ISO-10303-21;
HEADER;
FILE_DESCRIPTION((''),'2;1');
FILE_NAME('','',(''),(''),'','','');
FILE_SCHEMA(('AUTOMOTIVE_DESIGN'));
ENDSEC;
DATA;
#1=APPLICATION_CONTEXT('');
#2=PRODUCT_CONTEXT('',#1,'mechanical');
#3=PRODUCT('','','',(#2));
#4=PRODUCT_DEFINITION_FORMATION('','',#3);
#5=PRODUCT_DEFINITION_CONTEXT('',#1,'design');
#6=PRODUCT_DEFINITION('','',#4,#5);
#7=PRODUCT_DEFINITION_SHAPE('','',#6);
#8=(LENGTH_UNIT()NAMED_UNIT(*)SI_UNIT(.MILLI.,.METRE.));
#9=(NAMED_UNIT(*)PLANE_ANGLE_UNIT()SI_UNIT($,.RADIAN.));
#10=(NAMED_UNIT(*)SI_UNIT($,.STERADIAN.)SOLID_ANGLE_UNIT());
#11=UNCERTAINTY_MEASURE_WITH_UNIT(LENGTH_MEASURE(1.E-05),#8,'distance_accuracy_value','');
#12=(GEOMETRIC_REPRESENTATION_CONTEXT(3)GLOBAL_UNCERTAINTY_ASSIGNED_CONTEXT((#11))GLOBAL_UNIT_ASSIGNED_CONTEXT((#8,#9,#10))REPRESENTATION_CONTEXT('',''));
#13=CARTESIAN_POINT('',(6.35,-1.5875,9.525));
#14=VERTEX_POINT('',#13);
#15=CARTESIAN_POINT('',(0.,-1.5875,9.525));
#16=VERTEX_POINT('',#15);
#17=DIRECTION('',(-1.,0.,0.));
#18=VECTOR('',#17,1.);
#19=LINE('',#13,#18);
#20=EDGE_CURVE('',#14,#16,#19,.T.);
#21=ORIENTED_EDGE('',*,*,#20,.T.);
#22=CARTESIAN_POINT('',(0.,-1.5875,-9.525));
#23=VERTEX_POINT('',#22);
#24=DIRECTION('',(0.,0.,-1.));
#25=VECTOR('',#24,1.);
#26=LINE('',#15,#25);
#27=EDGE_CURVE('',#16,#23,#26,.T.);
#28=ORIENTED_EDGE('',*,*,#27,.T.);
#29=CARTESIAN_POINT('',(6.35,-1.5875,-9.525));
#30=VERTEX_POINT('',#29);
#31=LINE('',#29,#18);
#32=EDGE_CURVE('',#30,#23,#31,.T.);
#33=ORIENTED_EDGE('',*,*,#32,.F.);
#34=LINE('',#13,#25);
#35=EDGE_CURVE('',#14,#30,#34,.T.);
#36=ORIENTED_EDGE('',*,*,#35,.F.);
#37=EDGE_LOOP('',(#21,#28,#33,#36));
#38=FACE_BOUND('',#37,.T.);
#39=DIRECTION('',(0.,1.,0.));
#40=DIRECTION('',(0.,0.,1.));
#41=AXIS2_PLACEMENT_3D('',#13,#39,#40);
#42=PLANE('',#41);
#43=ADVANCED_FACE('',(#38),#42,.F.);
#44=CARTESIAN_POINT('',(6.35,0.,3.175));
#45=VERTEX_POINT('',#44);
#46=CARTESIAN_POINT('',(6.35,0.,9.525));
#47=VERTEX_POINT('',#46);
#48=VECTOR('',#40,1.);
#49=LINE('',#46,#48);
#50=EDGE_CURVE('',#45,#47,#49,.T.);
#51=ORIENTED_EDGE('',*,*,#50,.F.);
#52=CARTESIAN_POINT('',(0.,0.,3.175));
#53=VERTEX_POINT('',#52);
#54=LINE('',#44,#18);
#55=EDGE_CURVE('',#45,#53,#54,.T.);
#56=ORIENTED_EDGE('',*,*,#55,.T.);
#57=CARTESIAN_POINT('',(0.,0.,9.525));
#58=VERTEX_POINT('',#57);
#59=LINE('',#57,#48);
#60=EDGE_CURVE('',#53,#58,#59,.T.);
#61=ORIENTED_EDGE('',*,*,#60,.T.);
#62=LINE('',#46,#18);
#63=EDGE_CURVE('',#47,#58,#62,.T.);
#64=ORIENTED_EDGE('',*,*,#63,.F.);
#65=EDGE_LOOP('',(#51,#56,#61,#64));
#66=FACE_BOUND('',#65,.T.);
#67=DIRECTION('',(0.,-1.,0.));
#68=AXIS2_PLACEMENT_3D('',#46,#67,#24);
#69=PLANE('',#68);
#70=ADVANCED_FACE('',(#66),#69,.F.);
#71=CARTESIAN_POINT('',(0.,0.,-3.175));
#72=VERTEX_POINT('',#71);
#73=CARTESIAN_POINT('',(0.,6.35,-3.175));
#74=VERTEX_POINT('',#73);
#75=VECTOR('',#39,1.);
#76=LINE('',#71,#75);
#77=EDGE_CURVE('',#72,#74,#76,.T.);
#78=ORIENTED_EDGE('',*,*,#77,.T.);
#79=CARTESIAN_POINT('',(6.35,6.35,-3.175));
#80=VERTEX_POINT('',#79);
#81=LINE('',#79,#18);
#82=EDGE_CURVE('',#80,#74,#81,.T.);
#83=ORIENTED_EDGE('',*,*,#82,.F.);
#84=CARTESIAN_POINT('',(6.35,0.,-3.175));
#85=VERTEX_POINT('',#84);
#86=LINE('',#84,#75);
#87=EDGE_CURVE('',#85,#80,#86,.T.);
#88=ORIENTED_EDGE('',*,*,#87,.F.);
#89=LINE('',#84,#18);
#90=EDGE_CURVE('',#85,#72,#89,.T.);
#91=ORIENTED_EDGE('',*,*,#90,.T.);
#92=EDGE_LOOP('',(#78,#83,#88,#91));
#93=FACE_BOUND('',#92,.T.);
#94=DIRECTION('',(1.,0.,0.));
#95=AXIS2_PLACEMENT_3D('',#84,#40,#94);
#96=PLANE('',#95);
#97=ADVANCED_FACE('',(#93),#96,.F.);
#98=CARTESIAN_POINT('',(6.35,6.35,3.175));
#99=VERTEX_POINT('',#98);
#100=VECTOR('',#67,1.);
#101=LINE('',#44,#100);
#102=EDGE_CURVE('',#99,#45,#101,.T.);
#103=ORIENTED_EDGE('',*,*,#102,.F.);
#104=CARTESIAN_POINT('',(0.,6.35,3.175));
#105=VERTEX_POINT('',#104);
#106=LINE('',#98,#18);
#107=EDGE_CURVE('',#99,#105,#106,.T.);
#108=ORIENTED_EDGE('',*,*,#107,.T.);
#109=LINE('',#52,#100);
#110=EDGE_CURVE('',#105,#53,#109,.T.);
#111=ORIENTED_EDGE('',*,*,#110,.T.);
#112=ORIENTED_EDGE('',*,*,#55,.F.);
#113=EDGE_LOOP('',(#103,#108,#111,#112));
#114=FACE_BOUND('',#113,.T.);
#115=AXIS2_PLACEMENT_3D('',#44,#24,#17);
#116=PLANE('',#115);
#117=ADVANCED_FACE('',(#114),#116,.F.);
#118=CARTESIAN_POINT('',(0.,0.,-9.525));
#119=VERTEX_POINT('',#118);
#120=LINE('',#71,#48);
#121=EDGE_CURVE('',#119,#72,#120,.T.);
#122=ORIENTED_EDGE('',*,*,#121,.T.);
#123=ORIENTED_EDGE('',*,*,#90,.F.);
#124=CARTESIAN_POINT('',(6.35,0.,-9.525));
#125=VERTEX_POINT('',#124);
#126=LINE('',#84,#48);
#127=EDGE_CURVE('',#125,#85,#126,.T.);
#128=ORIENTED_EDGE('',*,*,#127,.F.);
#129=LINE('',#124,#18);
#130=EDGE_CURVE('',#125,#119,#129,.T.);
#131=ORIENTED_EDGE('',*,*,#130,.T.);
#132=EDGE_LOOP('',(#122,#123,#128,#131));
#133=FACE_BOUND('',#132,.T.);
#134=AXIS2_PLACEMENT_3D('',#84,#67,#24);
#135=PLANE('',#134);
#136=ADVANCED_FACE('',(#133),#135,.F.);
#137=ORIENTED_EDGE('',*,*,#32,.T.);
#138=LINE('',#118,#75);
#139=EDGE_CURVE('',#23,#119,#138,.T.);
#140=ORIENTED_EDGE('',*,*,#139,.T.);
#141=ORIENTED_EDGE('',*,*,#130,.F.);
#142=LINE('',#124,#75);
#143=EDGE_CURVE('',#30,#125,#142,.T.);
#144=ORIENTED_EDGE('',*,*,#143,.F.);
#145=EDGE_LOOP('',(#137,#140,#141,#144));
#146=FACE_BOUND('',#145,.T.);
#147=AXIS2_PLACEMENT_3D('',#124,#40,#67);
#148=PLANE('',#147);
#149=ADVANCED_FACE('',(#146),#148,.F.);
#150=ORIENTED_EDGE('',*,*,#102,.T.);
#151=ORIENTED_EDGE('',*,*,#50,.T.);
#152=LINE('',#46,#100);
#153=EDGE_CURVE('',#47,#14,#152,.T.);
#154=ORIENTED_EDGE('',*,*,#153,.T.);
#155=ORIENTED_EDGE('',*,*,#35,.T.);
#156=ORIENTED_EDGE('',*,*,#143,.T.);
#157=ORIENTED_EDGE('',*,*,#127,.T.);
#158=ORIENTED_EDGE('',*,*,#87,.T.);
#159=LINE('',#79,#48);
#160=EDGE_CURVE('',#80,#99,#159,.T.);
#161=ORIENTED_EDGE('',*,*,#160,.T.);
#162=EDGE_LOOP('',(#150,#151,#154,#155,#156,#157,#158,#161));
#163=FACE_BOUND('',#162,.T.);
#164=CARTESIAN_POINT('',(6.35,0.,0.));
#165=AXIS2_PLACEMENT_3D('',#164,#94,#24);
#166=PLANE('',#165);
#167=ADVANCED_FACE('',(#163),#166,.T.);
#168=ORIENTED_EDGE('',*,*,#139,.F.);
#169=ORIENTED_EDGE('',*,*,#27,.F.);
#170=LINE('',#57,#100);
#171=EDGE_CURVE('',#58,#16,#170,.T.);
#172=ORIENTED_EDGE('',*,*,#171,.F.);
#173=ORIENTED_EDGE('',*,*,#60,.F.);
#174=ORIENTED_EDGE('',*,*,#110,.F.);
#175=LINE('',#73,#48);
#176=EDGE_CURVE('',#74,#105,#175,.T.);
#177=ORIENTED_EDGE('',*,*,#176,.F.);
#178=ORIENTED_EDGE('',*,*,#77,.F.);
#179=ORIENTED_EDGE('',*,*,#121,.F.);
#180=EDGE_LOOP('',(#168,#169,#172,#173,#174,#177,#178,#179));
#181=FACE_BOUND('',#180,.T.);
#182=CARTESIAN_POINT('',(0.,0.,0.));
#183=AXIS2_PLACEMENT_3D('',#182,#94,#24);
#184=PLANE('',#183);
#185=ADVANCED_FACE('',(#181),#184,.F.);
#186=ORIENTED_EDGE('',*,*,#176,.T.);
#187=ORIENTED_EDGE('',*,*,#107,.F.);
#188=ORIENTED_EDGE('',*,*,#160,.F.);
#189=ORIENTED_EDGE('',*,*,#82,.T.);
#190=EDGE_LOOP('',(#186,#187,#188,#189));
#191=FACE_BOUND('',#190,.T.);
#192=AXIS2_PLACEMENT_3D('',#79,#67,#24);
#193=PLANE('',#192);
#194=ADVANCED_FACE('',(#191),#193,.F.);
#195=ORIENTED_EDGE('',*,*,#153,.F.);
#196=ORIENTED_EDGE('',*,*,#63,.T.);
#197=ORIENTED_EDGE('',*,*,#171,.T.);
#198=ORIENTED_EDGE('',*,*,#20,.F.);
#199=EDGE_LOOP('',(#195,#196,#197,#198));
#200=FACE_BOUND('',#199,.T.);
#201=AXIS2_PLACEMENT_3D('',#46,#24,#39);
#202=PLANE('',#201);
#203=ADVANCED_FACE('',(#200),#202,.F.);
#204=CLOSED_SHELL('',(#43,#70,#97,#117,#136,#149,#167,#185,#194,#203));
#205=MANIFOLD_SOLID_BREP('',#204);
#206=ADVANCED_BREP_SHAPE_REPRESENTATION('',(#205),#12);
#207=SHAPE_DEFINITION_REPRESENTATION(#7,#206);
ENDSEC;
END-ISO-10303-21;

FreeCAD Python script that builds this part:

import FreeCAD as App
import Part
import Sketcher

V = App.Vector
Q = App.Units.Quantity

doc = App.newDocument("Part")
params = doc.addObject("Spreadsheet::Sheet", "Params")
for row, (alias, value) in enumerate([
    ("sketch1_width", "0.25 in"),
    ("sketch1_width2", "0.0625 in"),
    ("pad1_length", "0.25 in"),
], start=1):
    params.set(f"A{row}", alias)
    params.set(f"B{row}", "=" + value)
    params.setAlias(f"B{row}", alias)

body = doc.addObject("PartDesign::Body", "Body")

sketch1 = doc.addObject("Sketcher::SketchObject", "Sketch")
body.addObject(sketch1)
sketch1.AttachmentSupport = (doc.YZ_Plane, [""])
sketch1.MapMode = "FlatFace"
sketch1.addGeometry(Part.LineSegment(V(0, -9.525, 0), V(0, -3.175, 0)), False)
sketch1.addGeometry(Part.LineSegment(V(0, -3.175, 0), V(6.35, -3.175, 0)), False)
sketch1.addGeometry(Part.LineSegment(V(6.35, -3.175, 0), V(6.35, 3.175, 0)), False)
sketch1.addGeometry(Part.LineSegment(V(6.35, 3.175, 0), V(0, 3.175, 0)), False)
sketch1.addGeometry(Part.LineSegment(V(0, 3.175, 0), V(0, 9.525, 0)), False)
sketch1.addGeometry(Part.LineSegment(V(0, 9.525, 0), V(-1.5875, 9.525, 0)), False)
sketch1.addGeometry(Part.LineSegment(V(-1.5875, 9.525, 0), V(-1.5875, -9.525, 0)), False)
sketch1.addGeometry(Part.LineSegment(V(-1.5875, -9.525, 0), V(0, -9.525, 0)), False)
sketch1.addConstraint(Sketcher.Constraint("Coincident", 0, 2, 1, 1))
sketch1.addConstraint(Sketcher.Constraint("Coincident", 1, 2, 2, 1))
sketch1.addConstraint(Sketcher.Constraint("Coincident", 2, 2, 3, 1))
sketch1.addConstraint(Sketcher.Constraint("Coincident", 3, 2, 4, 1))
sketch1.addConstraint(Sketcher.Constraint("Coincident", 4, 2, 5, 1))
sketch1.addConstraint(Sketcher.Constraint("Coincident", 5, 2, 6, 1))
sketch1.addConstraint(Sketcher.Constraint("Coincident", 6, 2, 7, 1))
sketch1.addConstraint(Sketcher.Constraint("Coincident", 7, 2, 0, 1))
sketch1.addConstraint(Sketcher.Constraint("Vertical", 0))
sketch1.addConstraint(Sketcher.Constraint("Horizontal", 1))
sketch1.addConstraint(Sketcher.Constraint("Vertical", 2))
sketch1.addConstraint(Sketcher.Constraint("Horizontal", 3))
sketch1.addConstraint(Sketcher.Constraint("Vertical", 4))
sketch1.addConstraint(Sketcher.Constraint("Horizontal", 5))
sketch1.addConstraint(Sketcher.Constraint("Vertical", 6))
sketch1.addConstraint(Sketcher.Constraint("Horizontal", 7))
sketch1.addConstraint(Sketcher.Constraint("Symmetric", 0, 2, 3, 2, -1, 1))
sketch1.addConstraint(Sketcher.Constraint("Symmetric", 4, 2, 7, 2, -1))
sketch1.addConstraint(Sketcher.Constraint("Equal", 3, 0))
sketch1.addConstraint(Sketcher.Constraint("Equal", 0, 2))
sketch1.addConstraint(Sketcher.Constraint("DistanceX", 1, 1, 1, 2, Q("0.25 in")))
sketch1.addConstraint(Sketcher.Constraint("DistanceX", 5, 2, 5, 1, Q("0.0625 in")))
sketch1.setExpression("Constraints[20]", "Params.sketch1_width")
sketch1.setExpression("Constraints[21]", "Params.sketch1_width2")
pad1 = doc.addObject("PartDesign::Pad", "Pad")
body.addObject(pad1)
pad1.Profile = sketch1
pad1.setExpression("Length", "Params.pad1_length")

doc.recompute()
